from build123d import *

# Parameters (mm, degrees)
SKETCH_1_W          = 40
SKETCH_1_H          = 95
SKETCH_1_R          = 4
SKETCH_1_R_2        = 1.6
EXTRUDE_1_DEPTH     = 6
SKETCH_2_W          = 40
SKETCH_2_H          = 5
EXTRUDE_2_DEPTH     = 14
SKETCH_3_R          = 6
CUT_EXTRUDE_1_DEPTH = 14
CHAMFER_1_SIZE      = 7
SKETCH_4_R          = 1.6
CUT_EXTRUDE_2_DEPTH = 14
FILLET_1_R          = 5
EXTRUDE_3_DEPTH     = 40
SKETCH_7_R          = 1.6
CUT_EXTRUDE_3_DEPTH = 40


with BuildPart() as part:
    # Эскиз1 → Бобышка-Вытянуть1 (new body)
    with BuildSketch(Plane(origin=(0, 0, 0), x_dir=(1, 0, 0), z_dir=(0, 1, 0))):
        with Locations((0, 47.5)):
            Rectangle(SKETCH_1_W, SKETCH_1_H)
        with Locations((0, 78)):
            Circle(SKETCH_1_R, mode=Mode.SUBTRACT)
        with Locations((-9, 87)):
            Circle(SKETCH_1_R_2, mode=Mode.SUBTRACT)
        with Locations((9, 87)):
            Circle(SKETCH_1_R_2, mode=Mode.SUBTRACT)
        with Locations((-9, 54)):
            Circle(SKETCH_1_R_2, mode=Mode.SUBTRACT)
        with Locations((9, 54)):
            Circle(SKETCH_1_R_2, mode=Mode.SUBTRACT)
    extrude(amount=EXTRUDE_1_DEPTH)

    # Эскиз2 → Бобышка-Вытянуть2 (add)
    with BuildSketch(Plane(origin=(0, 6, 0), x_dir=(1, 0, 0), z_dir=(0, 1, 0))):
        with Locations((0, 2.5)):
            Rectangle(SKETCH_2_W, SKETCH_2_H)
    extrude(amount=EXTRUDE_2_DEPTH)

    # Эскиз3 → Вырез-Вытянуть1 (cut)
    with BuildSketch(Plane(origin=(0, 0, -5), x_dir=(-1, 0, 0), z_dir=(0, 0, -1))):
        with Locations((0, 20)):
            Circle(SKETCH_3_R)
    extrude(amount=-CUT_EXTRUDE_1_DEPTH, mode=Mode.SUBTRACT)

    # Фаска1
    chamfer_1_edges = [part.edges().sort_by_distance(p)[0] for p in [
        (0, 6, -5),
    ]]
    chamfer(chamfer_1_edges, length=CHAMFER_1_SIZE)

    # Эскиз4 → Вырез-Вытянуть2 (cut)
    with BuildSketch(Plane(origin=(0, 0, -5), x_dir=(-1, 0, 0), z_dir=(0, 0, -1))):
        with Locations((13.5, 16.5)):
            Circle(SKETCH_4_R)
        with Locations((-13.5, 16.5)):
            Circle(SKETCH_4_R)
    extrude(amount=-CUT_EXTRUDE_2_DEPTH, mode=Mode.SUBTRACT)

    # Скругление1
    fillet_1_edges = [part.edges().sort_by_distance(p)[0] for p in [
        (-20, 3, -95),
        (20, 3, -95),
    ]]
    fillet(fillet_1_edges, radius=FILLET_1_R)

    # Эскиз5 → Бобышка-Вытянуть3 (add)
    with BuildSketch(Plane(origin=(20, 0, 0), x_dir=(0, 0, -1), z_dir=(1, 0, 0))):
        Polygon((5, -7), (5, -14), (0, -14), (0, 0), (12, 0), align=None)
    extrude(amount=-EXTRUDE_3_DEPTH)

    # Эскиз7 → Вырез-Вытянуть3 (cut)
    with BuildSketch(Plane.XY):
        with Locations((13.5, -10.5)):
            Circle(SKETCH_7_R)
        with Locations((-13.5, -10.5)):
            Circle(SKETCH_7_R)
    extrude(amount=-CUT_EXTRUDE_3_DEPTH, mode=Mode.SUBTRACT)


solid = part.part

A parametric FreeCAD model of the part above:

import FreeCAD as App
import Part
import Sketcher


def edges_at(feature, points):
    """Names of the edges that pass closest to the given points."""
    edges = feature.Shape.Edges
    near = lambda p: min(range(len(edges)), key=lambda i: edges[i].distToShape(Part.Vertex(*p))[0])
    return sorted({f"Edge{near(p) + 1}" for p in points})


def add_polygon(sketch, points):
    """Adds a closed chain of lines whose ends are joined by coincident constraints."""
    first, n = sketch.GeometryCount, len(points)
    for a, b in zip(points, points[1:] + points[:1]):
        sketch.addGeometry(Part.LineSegment(App.Vector(*a, 0), App.Vector(*b, 0)), False)
    for i in range(n):
        sketch.addConstraint(Sketcher.Constraint("Coincident", first + i, 2, first + (i + 1) % n, 1))

doc = App.newDocument("Part")
body = doc.addObject("PartDesign::Body", "Body")

sketch1 = body.newObject("Sketcher::SketchObject", "Sketch")
sketch1.AttachmentSupport = (doc.getObject("XZ_Plane"), [""])
sketch1.MapMode = "FlatFace"
add_polygon(sketch1, [(-20, -95), (-20, 0), (20, 0), (20, -95)])
sketch1.addGeometry(Part.Circle(App.Vector(-9, -54, 0), App.Vector(0, 0, 1), 1.6), False)
sketch1.addGeometry(Part.Circle(App.Vector(9, -54, 0), App.Vector(0, 0, 1), 1.6), False)
sketch1.addGeometry(Part.Circle(App.Vector(-9, -87, 0), App.Vector(0, 0, 1), 1.6), False)
sketch1.addGeometry(Part.Circle(App.Vector(0, -78, 0), App.Vector(0, 0, 1), 4), False)
sketch1.addGeometry(Part.Circle(App.Vector(9, -87, 0), App.Vector(0, 0, 1), 1.6), False)
sketch1.addConstraint(Sketcher.Constraint("Vertical", 0))
sketch1.addConstraint(Sketcher.Constraint("Horizontal", 1))
sketch1.addConstraint(Sketcher.Constraint("Vertical", 2))
sketch1.addConstraint(Sketcher.Constraint("Horizontal", 3))
sketch1.addConstraint(Sketcher.Constraint("Equal", 4, 5))
sketch1.addConstraint(Sketcher.Constraint("Equal", 5, 6))
sketch1.addConstraint(Sketcher.Constraint("Equal", 6, 8))
sketch1.addConstraint(Sketcher.Constraint("Symmetric", 0, 2, 1, 2, -1, 1))
sketch1.addConstraint(Sketcher.Constraint("Symmetric", 4, 3, 5, 3, -2))
sketch1.addConstraint(Sketcher.Constraint("Symmetric", 6, 3, 8, 3, -2))
sketch1.addConstraint(Sketcher.Constraint("PointOnObject", 7, 3, -2))
sketch1.addConstraint(Sketcher.Constraint("Vertical", 4, 3, 6, 3))
sketch1.addConstraint(Sketcher.Constraint("Diameter", 7, 8.0))
sketch1.addConstraint(Sketcher.Constraint("Diameter", 4, 3.2))
sketch1.addConstraint(Sketcher.Constraint("DistanceX", 1, 1, 1, 2, 40.0))
sketch1.addConstraint(Sketcher.Constraint("DistanceY", 0, 1, 0, 2, 95.0))
sketch1.addConstraint(Sketcher.Constraint("DistanceX", 4, 3, -1, 1, 9.0))
sketch1.addConstraint(Sketcher.Constraint("DistanceY", 4, 3, -1, 1, 54.0))
sketch1.addConstraint(Sketcher.Constraint("DistanceY", 6, 3, -1, 1, 87.0))
sketch1.addConstraint(Sketcher.Constraint("DistanceY", 7, 3, -1, 1, 78.0))
pad1 = body.newObject("PartDesign::Pad", "Pad")
pad1.Profile = sketch1
pad1.Length = 6
pad1.Reversed = True

sketch2 = body.newObject("Sketcher::SketchObject", "Sketch001")
sketch2.AttachmentSupport = (doc.getObject("XZ_Plane"), [""])
sketch2.MapMode = "FlatFace"
sketch2.AttachmentOffset = App.Placement(App.Vector(0, 0, -6), App.Rotation())
add_polygon(sketch2, [(-20, -5), (-20, 0), (20, 0), (20, -5)])
sketch2.addConstraint(Sketcher.Constraint("Vertical", 0))
sketch2.addConstraint(Sketcher.Constraint("Horizontal", 1))
sketch2.addConstraint(Sketcher.Constraint("Vertical", 2))
sketch2.addConstraint(Sketcher.Constraint("Horizontal", 3))
sketch2.addConstraint(Sketcher.Constraint("Symmetric", 0, 2, 1, 2, -1, 1))
sketch2.addConstraint(Sketcher.Constraint("DistanceX", 1, 1, 1, 2, 40.0))
sketch2.addConstraint(Sketcher.Constraint("DistanceY", 0, 1, 0, 2, 5.0))
pad2 = body.newObject("PartDesign::Pad", "Pad001")
pad2.Profile = sketch2
pad2.Length = 14
pad2.Reversed = True

sketch3 = body.newObject("Sketcher::SketchObject", "Sketch002")
sketch3.AttachmentSupport = (doc.getObject("XY_Plane"), [""])
sketch3.MapMode = "FlatFace"
sketch3.AttachmentOffset = App.Placement(App.Vector(0, 0, -5), App.Rotation())
sketch3.addGeometry(Part.Circle(App.Vector(0, 20, 0), App.Vector(0, 0, 1), 6), False)
sketch3.addConstraint(Sketcher.Constraint("PointOnObject", 0, 3, -2))
sketch3.addConstraint(Sketcher.Constraint("Diameter", 0, 12.0))
sketch3.addConstraint(Sketcher.Constraint("DistanceY", -1, 1, 0, 3, 20.0))
pocket1 = body.newObject("PartDesign::Pocket", "Pocket")
pocket1.Profile = sketch3
pocket1.Length = 14
pocket1.Reversed = True
doc.recompute()

chamfer = body.newObject("PartDesign::Chamfer", "Chamfer")
chamfer.Base = (pocket1, edges_at(pocket1, [(0, 6, -5)]))
chamfer.Size = 7

sketch4 = body.newObject("Sketcher::SketchObject", "Sketch003")
sketch4.AttachmentSupport = (doc.getObject("XY_Plane"), [""])
sketch4.MapMode = "FlatFace"
sketch4.AttachmentOffset = App.Placement(App.Vector(0, 0, -5), App.Rotation())
sketch4.addGeometry(Part.Circle(App.Vector(-13.5, 16.5, 0), App.Vector(0, 0, 1), 1.6), False)
sketch4.addGeometry(Part.Circle(App.Vector(13.5, 16.5, 0), App.Vector(0, 0, 1), 1.6), False)
sketch4.addConstraint(Sketcher.Constraint("Equal", 0, 1))
sketch4.addConstraint(Sketcher.Constraint("Symmetric", 0, 3, 1, 3, -2))
sketch4.addConstraint(Sketcher.Constraint("Diameter", 0, 3.2))
sketch4.addConstraint(Sketcher.Constraint("DistanceX", 0, 3, 1, 3, 27.0))
sketch4.addConstraint(Sketcher.Constraint("DistanceY", -1, 1, 0, 3, 16.5))
pocket2 = body.newObject("PartDesign::Pocket", "Pocket001")
pocket2.Profile = sketch4
pocket2.Length = 14
pocket2.Reversed = True
doc.recompute()

fillet = body.newObject("PartDesign::Fillet", "Fillet")
fillet.Base = (pocket2, edges_at(pocket2, [(-20, 3, -95), (20, 3, -95)]))
fillet.Radius = 5

sketch5 = body.newObject("Sketcher::SketchObject", "Sketch004")
sketch5.AttachmentSupport = (doc.getObject("YZ_Plane"), [""])
sketch5.MapMode = "FlatFace"
sketch5.AttachmentOffset = App.Placement(App.Vector(0, 0, 20), App.Rotation())
add_polygon(sketch5, [(-14, -5), (-7, -5), (0, -12), (0, 0), (-14, 0)])
sketch5.addConstraint(Sketcher.Constraint("Horizontal", 0))
sketch5.addConstraint(Sketcher.Constraint("Vertical", 2))
sketch5.addConstraint(Sketcher.Constraint("Horizontal", 3))
sketch5.addConstraint(Sketcher.Constraint("Vertical", 4))
sketch5.addConstraint(Sketcher.Constraint("Coincident", 2, 2, -1, 1))
sketch5.addConstraint(Sketcher.Constraint("DistanceX", 0, 1, 0, 2, 7.0))
sketch5.addConstraint(Sketcher.Constraint("DistanceX", 3, 2, 3, 1, 14.0))
sketch5.addConstraint(Sketcher.Constraint("DistanceY", 2, 1, 2, 2, 12.0))
sketch5.addConstraint(Sketcher.Constraint("DistanceY", 4, 2, 4, 1, 5.0))
pad3 = body.newObject("PartDesign::Pad", "Pad002")
pad3.Profile = sketch5
pad3.Length = 40
pad3.Reversed = True

sketch6 = body.newObject("Sketcher::SketchObject", "Sketch005")
sketch6.AttachmentSupport = (doc.getObject("XY_Plane"), [""])
sketch6.MapMode = "FlatFace"
sketch6.addGeometry(Part.Circle(App.Vector(13.5, -10.5, 0), App.Vector(0, 0, 1), 1.6), False)
sketch6.addGeometry(Part.Circle(App.Vector(-13.5, -10.5, 0), App.Vector(0, 0, 1), 1.6), False)
sketch6.addConstraint(Sketcher.Constraint("Equal", 0, 1))
sketch6.addConstraint(Sketcher.Constraint("Symmetric", 0, 3, 1, 3, -2))
sketch6.addConstraint(Sketcher.Constraint("Diameter", 0, 3.2))
sketch6.addConstraint(Sketcher.Constraint("DistanceX", 1, 3, 0, 3, 27.0))
sketch6.addConstraint(Sketcher.Constraint("DistanceY", 0, 3, -1, 1, 10.5))
pocket3 = body.newObject("PartDesign::Pocket", "Pocket002")
pocket3.Profile = sketch6
pocket3.Length = 40

doc.recompute()
